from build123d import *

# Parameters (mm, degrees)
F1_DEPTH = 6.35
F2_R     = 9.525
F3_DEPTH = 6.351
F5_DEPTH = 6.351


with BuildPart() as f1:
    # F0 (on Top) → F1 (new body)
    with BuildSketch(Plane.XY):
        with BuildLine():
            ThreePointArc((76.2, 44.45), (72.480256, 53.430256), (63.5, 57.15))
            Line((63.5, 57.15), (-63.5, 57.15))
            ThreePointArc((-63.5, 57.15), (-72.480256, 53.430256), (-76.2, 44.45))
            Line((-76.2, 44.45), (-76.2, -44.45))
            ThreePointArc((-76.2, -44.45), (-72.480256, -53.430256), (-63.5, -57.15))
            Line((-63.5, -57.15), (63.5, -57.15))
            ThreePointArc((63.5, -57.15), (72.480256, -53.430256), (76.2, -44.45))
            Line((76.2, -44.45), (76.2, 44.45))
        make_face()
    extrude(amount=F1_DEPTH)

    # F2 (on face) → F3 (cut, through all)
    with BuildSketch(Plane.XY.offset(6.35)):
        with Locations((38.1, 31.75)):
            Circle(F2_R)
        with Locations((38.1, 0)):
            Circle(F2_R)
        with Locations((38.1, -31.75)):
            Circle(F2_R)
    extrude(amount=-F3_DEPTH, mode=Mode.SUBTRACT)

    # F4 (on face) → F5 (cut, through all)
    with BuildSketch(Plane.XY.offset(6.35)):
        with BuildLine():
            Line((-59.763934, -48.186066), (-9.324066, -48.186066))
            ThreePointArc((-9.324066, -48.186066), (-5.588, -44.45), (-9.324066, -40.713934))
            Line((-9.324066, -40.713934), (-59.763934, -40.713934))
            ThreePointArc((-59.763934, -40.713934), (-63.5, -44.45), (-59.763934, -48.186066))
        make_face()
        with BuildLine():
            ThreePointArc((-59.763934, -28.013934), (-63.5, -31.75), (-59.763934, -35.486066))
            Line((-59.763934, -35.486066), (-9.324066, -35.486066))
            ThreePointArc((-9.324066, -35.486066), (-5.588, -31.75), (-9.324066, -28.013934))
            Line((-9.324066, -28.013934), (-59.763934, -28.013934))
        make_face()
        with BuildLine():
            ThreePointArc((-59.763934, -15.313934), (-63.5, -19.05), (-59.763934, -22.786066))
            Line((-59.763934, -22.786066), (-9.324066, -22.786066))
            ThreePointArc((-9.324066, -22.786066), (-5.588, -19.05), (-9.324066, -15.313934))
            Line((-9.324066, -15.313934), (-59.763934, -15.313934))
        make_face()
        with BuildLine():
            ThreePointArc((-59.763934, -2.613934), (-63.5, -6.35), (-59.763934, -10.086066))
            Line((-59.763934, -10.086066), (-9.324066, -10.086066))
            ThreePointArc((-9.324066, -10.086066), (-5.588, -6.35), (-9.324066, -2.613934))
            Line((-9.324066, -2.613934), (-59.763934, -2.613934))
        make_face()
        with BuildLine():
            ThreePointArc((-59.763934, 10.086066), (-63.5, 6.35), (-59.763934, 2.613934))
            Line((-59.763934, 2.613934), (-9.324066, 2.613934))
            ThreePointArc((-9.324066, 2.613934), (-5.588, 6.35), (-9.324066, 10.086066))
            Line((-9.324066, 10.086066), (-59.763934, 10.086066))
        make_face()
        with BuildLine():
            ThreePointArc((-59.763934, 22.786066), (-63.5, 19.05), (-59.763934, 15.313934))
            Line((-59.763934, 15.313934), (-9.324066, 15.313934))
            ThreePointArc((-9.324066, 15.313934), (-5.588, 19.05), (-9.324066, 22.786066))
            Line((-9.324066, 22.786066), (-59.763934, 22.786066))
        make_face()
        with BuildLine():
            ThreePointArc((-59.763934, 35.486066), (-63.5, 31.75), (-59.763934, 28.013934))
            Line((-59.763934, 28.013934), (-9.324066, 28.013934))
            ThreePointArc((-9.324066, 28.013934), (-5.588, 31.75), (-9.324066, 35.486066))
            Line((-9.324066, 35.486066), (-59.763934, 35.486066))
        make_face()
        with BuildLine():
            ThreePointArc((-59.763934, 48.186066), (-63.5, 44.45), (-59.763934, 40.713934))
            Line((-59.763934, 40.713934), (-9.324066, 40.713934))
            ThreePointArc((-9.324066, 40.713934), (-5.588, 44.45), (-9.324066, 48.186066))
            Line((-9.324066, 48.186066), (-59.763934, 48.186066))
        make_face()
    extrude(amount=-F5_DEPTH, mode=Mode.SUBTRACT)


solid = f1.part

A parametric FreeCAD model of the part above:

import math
import FreeCAD as App
import Part
import Sketcher
from FreeCAD import Vector
Q = App.Units.Quantity

doc = App.newDocument("Part")
body = doc.addObject("PartDesign::Body", "Body")

sketch1 = body.newObject("Sketcher::SketchObject", "Sketch")
sketch1.AttachmentSupport = (doc.getObject("XY_Plane"), [""])
sketch1.MapMode = "FlatFace"
sketch1.addGeometry(Part.ArcOfCircle(Part.Circle(Vector(63, 44, 0), Vector(0, 0, 1), 13), math.radians(0), math.radians(90)), False)
sketch1.addGeometry(Part.LineSegment(Vector(64, 57, 0), Vector(-64, 57, 0)), False)
sketch1.addGeometry(Part.ArcOfCircle(Part.Circle(Vector(-63, 44, 0), Vector(0, 0, 1), 13), math.radians(90), math.radians(180)), False)
sketch1.addGeometry(Part.LineSegment(Vector(-76, 44, 0), Vector(-76, -44, 0)), False)
sketch1.addGeometry(Part.ArcOfCircle(Part.Circle(Vector(-63, -44, 0), Vector(0, 0, 1), 13), math.radians(-180), math.radians(-90)), False)
sketch1.addGeometry(Part.LineSegment(Vector(-64, -57, 0), Vector(64, -57, 0)), False)
sketch1.addGeometry(Part.ArcOfCircle(Part.Circle(Vector(63, -44, 0), Vector(0, 0, 1), 13), math.radians(-90), math.radians(0)), False)
sketch1.addGeometry(Part.LineSegment(Vector(76, -44, 0), Vector(76, 44, 0)), False)
sketch1.addConstraint(Sketcher.Constraint("Tangent", 0, 2, 1, 1))
sketch1.addConstraint(Sketcher.Constraint("Tangent", 1, 2, 2, 1))
sketch1.addConstraint(Sketcher.Constraint("Tangent", 2, 2, 3, 1))
sketch1.addConstraint(Sketcher.Constraint("Tangent", 3, 2, 4, 1))
sketch1.addConstraint(Sketcher.Constraint("Tangent", 4, 2, 5, 1))
sketch1.addConstraint(Sketcher.Constraint("Tangent", 5, 2, 6, 1))
sketch1.addConstraint(Sketcher.Constraint("Tangent", 6, 2, 7, 1))
sketch1.addConstraint(Sketcher.Constraint("Tangent", 7, 2, 0, 1))
sketch1.addConstraint(Sketcher.Constraint("Horizontal", 1))
sketch1.addConstraint(Sketcher.Constraint("Vertical", 3))
sketch1.addConstraint(Sketcher.Constraint("Horizontal", 5))
sketch1.addConstraint(Sketcher.Constraint("Vertical", 7))
sketch1.addConstraint(Sketcher.Constraint("Equal", 0, 2))
sketch1.addConstraint(Sketcher.Constraint("Equal", 2, 4))
sketch1.addConstraint(Sketcher.Constraint("Equal", 4, 6))
sketch1.addConstraint(Sketcher.Constraint("Symmetric", 0, 3, 4, 3, -1, 1))
sketch1.addConstraint(Sketcher.Constraint("Radius", 0, Q("0.5 in")))
sketch1.addConstraint(Sketcher.Constraint("DistanceX", 1, 2, 1, 1, Q("5 in")))
sketch1.addConstraint(Sketcher.Constraint("DistanceY", 3, 2, 3, 1, Q("3.5 in")))
pad1 = body.newObject("PartDesign::Pad", "Pad")
pad1.Profile = sketch1
pad1.Length = Q("0.25 in")

sketch2 = body.newObject("Sketcher::SketchObject", "Sketch001")
sketch2.AttachmentSupport = (doc.getObject("XY_Plane"), [""])
sketch2.MapMode = "FlatFace"
sketch2.AttachmentOffset = App.Placement(Vector(0, 0, 0.25 * 25.4), App.Rotation())
sketch2.addGeometry(Part.Circle(Vector(38, 32, 0), Vector(0, 0, 1), 10), False)
sketch2.addGeometry(Part.Circle(Vector(38, 0, 0), Vector(0, 0, 1), 10), False)
sketch2.addGeometry(Part.Circle(Vector(38, -32, 0), Vector(0, 0, 1), 10), False)
sketch2.addConstraint(Sketcher.Constraint("Equal", 0, 1))
sketch2.addConstraint(Sketcher.Constraint("Equal", 1, 2))
sketch2.addConstraint(Sketcher.Constraint("Symmetric", 0, 3, 2, 3, -1))
sketch2.addConstraint(Sketcher.Constraint("PointOnObject", 1, 3, -1))
sketch2.addConstraint(Sketcher.Constraint("Vertical", 0, 3, 1, 3))
sketch2.addConstraint(Sketcher.Constraint("Diameter", 0, Q("0.75 in")))
sketch2.addConstraint(Sketcher.Constraint("DistanceX", -1, 1, 0, 3, Q("1.5 in")))
sketch2.addConstraint(Sketcher.Constraint("DistanceY", 2, 3, 0, 3, Q("2.5 in")))
pocket1 = body.newObject("PartDesign::Pocket", "Pocket")
pocket1.Profile = sketch2
pocket1.Type = "ThroughAll"

sketch3 = body.newObject("Sketcher::SketchObject", "Sketch002")
sketch3.AttachmentSupport = (doc.getObject("XY_Plane"), [""])
sketch3.MapMode = "FlatFace"
sketch3.AttachmentOffset = App.Placement(Vector(0, 0, 0.25 * 25.4), App.Rotation())
sketch3.addGeometry(Part.LineSegment(Vector(-59.8, -48.2, 0), Vector(-9.3, -48.2, 0)), False)
sketch3.addGeometry(Part.ArcOfCircle(Part.Circle(Vector(-9.3, -44.5, 0), Vector(0, 0, 1), 3.7), math.radians(-90), math.radians(90)), False)
sketch3.addGeometry(Part.LineSegment(Vector(-9.3, -40.7, 0), Vector(-59.8, -40.7, 0)), False)
sketch3.addGeometry(Part.ArcOfCircle(Part.Circle(Vector(-59.8, -44.5, 0), Vector(0, 0, 1), 3.7), math.radians(90), math.radians(270)), False)
sketch3.addGeometry(Part.ArcOfCircle(Part.Circle(Vector(-59.8, -31.8, 0), Vector(0, 0, 1), 3.7), math.radians(90), math.radians(270)), False)
sketch3.addGeometry(Part.LineSegment(Vector(-59.8, -35.5, 0), Vector(-9.3, -35.5, 0)), False)
sketch3.addGeometry(Part.ArcOfCircle(Part.Circle(Vector(-9.3, -31.8, 0), Vector(0, 0, 1), 3.7), math.radians(-90), math.radians(90)), False)
sketch3.addGeometry(Part.LineSegment(Vector(-9.3, -28, 0), Vector(-59.8, -28, 0)), False)
sketch3.addGeometry(Part.ArcOfCircle(Part.Circle(Vector(-59.8, -19.1, 0), Vector(0, 0, 1), 3.7), math.radians(90), math.radians(270)), False)
sketch3.addGeometry(Part.LineSegment(Vector(-59.8, -22.8, 0), Vector(-9.3, -22.8, 0)), False)
sketch3.addGeometry(Part.ArcOfCircle(Part.Circle(Vector(-9.3, -19.1, 0), Vector(0, 0, 1), 3.7), math.radians(-90), math.radians(90)), False)
sketch3.addGeometry(Part.LineSegment(Vector(-9.3, -15.3, 0), Vector(-59.8, -15.3, 0)), False)
sketch3.addGeometry(Part.ArcOfCircle(Part.Circle(Vector(-59.8, -6.3, 0), Vector(0, 0, 1), 3.7), math.radians(90), math.radians(270)), False)
sketch3.addGeometry(Part.LineSegment(Vector(-59.8, -10.1, 0), Vector(-9.3, -10.1, 0)), False)
sketch3.addGeometry(Part.ArcOfCircle(Part.Circle(Vector(-9.3, -6.3, 0), Vector(0, 0, 1), 3.7), math.radians(-90), math.radians(90)), False)
sketch3.addGeometry(Part.LineSegment(Vector(-9.3, -2.6, 0), Vector(-59.8, -2.6, 0)), False)
sketch3.addGeometry(Part.ArcOfCircle(Part.Circle(Vector(-59.8, 6.3, 0), Vector(0, 0, 1), 3.7), math.radians(90), math.radians(270)), False)
sketch3.addGeometry(Part.LineSegment(Vector(-59.8, 2.6, 0), Vector(-9.3, 2.6, 0)), False)
sketch3.addGeometry(Part.ArcOfCircle(Part.Circle(Vector(-9.3, 6.3, 0), Vector(0, 0, 1), 3.7), math.radians(-90), math.radians(90)), False)
sketch3.addGeometry(Part.LineSegment(Vector(-9.3, 10.1, 0), Vector(-59.8, 10.1, 0)), False)
sketch3.addGeometry(Part.ArcOfCircle(Part.Circle(Vector(-59.8, 19.1, 0), Vector(0, 0, 1), 3.7), math.radians(90), math.radians(270)), False)
sketch3.addGeometry(Part.LineSegment(Vector(-59.8, 15.3, 0), Vector(-9.3, 15.3, 0)), False)
sketch3.addGeometry(Part.ArcOfCircle(Part.Circle(Vector(-9.3, 19.1, 0), Vector(0, 0, 1), 3.7), math.radians(-90), math.radians(90)), False)
sketch3.addGeometry(Part.LineSegment(Vector(-9.3, 22.8, 0), Vector(-59.8, 22.8, 0)), False)
sketch3.addGeometry(Part.ArcOfCircle(Part.Circle(Vector(-59.8, 31.8, 0), Vector(0, 0, 1), 3.7), math.radians(90), math.radians(270)), False)
sketch3.addGeometry(Part.LineSegment(Vector(-59.8, 28, 0), Vector(-9.3, 28, 0)), False)
sketch3.addGeometry(Part.ArcOfCircle(Part.Circle(Vector(-9.3, 31.8, 0), Vector(0, 0, 1), 3.7), math.radians(-90), math.radians(90)), False)
sketch3.addGeometry(Part.LineSegment(Vector(-9.3, 35.5, 0), Vector(-59.8, 35.5, 0)), False)
sketch3.addGeometry(Part.ArcOfCircle(Part.Circle(Vector(-59.8, 44.5, 0), Vector(0, 0, 1), 3.7), math.radians(90), math.radians(270)), False)
sketch3.addGeometry(Part.LineSegment(Vector(-59.8, 40.7, 0), Vector(-9.3, 40.7, 0)), False)
sketch3.addGeometry(Part.ArcOfCircle(Part.Circle(Vector(-9.3, 44.5, 0), Vector(0, 0, 1), 3.7), math.radians(-90), math.radians(90)), False)
sketch3.addGeometry(Part.LineSegment(Vector(-9.3, 48.2, 0), Vector(-59.8, 48.2, 0)), False)
sketch3.addConstraint(Sketcher.Constraint("Tangent", 0, 2, 1, 1))
sketch3.addConstraint(Sketcher.Constraint("Tangent", 1, 2, 2, 1))
sketch3.addConstraint(Sketcher.Constraint("Tangent", 2, 2, 3, 1))
sketch3.addConstraint(Sketcher.Constraint("Tangent", 3, 2, 0, 1))
sketch3.addConstraint(Sketcher.Constraint("Tangent", 4, 2, 5, 1))
sketch3.addConstraint(Sketcher.Constraint("Tangent", 5, 2, 6, 1))
sketch3.addConstraint(Sketcher.Constraint("Tangent", 6, 2, 7, 1))
sketch3.addConstraint(Sketcher.Constraint("Tangent", 7, 2, 4, 1))
sketch3.addConstraint(Sketcher.Constraint("Tangent", 8, 2, 9, 1))
sketch3.addConstraint(Sketcher.Constraint("Tangent", 9, 2, 10, 1))
sketch3.addConstraint(Sketcher.Constraint("Tangent", 10, 2, 11, 1))
sketch3.addConstraint(Sketcher.Constraint("Tangent", 11, 2, 8, 1))
sketch3.addConstraint(Sketcher.Constraint("Tangent", 12, 2, 13, 1))
sketch3.addConstraint(Sketcher.Constraint("Tangent", 13, 2, 14, 1))
sketch3.addConstraint(Sketcher.Constraint("Tangent", 14, 2, 15, 1))
sketch3.addConstraint(Sketcher.Constraint("Tangent", 15, 2, 12, 1))
sketch3.addConstraint(Sketcher.Constraint("Tangent", 16, 2, 17, 1))
sketch3.addConstraint(Sketcher.Constraint("Tangent", 17, 2, 18, 1))
sketch3.addConstraint(Sketcher.Constraint("Tangent", 18, 2, 19, 1))
sketch3.addConstraint(Sketcher.Constraint("Tangent", 19, 2, 16, 1))
sketch3.addConstraint(Sketcher.Constraint("Tangent", 20, 2, 21, 1))
sketch3.addConstraint(Sketcher.Constraint("Tangent", 21, 2, 22, 1))
sketch3.addConstraint(Sketcher.Constraint("Tangent", 22, 2, 23, 1))
sketch3.addConstraint(Sketcher.Constraint("Tangent", 23, 2, 20, 1))
sketch3.addConstraint(Sketcher.Constraint("Tangent", 24, 2, 25, 1))
sketch3.addConstraint(Sketcher.Constraint("Tangent", 25, 2, 26, 1))
sketch3.addConstraint(Sketcher.Constraint("Tangent", 26, 2, 27, 1))
sketch3.addConstraint(Sketcher.Constraint("Tangent", 27, 2, 24, 1))
sketch3.addConstraint(Sketcher.Constraint("Tangent", 28, 2, 29, 1))
sketch3.addConstraint(Sketcher.Constraint("Tangent", 29, 2, 30, 1))
sketch3.addConstraint(Sketcher.Constraint("Tangent", 30, 2, 31, 1))
sketch3.addConstraint(Sketcher.Constraint("Tangent", 31, 2, 28, 1))
sketch3.addConstraint(Sketcher.Constraint("Horizontal", 0))
sketch3.addConstraint(Sketcher.Constraint("Horizontal", 2))
sketch3.addConstraint(Sketcher.Constraint("Horizontal", 5))
sketch3.addConstraint(Sketcher.Constraint("Horizontal", 7))
sketch3.addConstraint(Sketcher.Constraint("Horizontal", 9))
sketch3.addConstraint(Sketcher.Constraint("Horizontal", 11))
sketch3.addConstraint(Sketcher.Constraint("Horizontal", 13))
sketch3.addConstraint(Sketcher.Constraint("Horizontal", 15))
sketch3.addConstraint(Sketcher.Constraint("Horizontal", 17))
sketch3.addConstraint(Sketcher.Constraint("Horizontal", 19))
sketch3.addConstraint(Sketcher.Constraint("Horizontal", 21))
sketch3.addConstraint(Sketcher.Constraint("Horizontal", 23))
sketch3.addConstraint(Sketcher.Constraint("Horizontal", 25))
sketch3.addConstraint(Sketcher.Constraint("Horizontal", 27))
sketch3.addConstraint(Sketcher.Constraint("Horizontal", 29))
sketch3.addConstraint(Sketcher.Constraint("Horizontal", 31))
sketch3.addConstraint(Sketcher.Constraint("Equal", 3, 4))
sketch3.addConstraint(Sketcher.Constraint("Equal", 6, 8))
sketch3.addConstraint(Sketcher.Constraint("Equal", 10, 12))
sketch3.addConstraint(Sketcher.Constraint("Equal", 14, 16))
sketch3.addConstraint(Sketcher.Constraint("Equal", 18, 20))
sketch3.addConstraint(Sketcher.Constraint("Equal", 22, 24))
sketch3.addConstraint(Sketcher.Constraint("Equal", 26, 28))
sketch3.addConstraint(Sketcher.Constraint("Symmetric", 12, 3, 16, 3, -1))
sketch3.addConstraint(Sketcher.Constraint("Symmetric", 8, 3, 20, 3, -1))
sketch3.addConstraint(Sketcher.Constraint("Symmetric", 4, 3, 24, 3, -1))
sketch3.addConstraint(Sketcher.Constraint("Symmetric", 3, 3, 28, 3, -1))
sketch3.addConstraint(Sketcher.Constraint("Vertical", 3, 3, 4, 3))
sketch3.addConstraint(Sketcher.Constraint("Vertical", 1, 3, 6, 3))
sketch3.addConstraint(Sketcher.Constraint("Vertical", 4, 3, 8, 3))
sketch3.addConstraint(Sketcher.Constraint("Vertical", 6, 3, 10, 3))
sketch3.addConstraint(Sketcher.Constraint("Vertical", 8, 3, 12, 3))
sketch3.addConstraint(Sketcher.Constraint("Vertical", 10, 3, 14, 3))
sketch3.addConstraint(Sketcher.Constraint("Vertical", 14, 3, 18, 3))
sketch3.addConstraint(Sketcher.Constraint("Vertical", 18, 3, 22, 3))
sketch3.addConstraint(Sketcher.Constraint("Vertical", 22, 3, 26, 3))
sketch3.addConstraint(Sketcher.Constraint("Vertical", 26, 3, 30, 3))
sketch3.addConstraint(Sketcher.Constraint("DistanceY", 3, 3, 8, 3, Q("1 in")))
sketch3.addConstraint(Sketcher.Constraint("DistanceY", 4, 3, 12, 3, Q("1 in")))
sketch3.addConstraint(Sketcher.Constraint("DistanceY", 8, 3, 16, 3, Q("1 in")))
sketch3.addConstraint(Sketcher.Constraint("DistanceY", 3, 3, 4, 3, Q("0.5 in")))
sketch3.addConstraint(Sketcher.Constraint("Radius", 1, 3.736066))
sketch3.addConstraint(Sketcher.Constraint("DistanceX", 0, 1, 0, 2, 50.439868))
sketch3.addConstraint(Sketcher.Constraint("DistanceX", 1, 3, -1, 1, 9.324066))
pocket2 = body.newObject("PartDesign::Pocket", "Pocket001")
pocket2.Profile = sketch3
pocket2.Type = "ThroughAll"

doc.recompute()
